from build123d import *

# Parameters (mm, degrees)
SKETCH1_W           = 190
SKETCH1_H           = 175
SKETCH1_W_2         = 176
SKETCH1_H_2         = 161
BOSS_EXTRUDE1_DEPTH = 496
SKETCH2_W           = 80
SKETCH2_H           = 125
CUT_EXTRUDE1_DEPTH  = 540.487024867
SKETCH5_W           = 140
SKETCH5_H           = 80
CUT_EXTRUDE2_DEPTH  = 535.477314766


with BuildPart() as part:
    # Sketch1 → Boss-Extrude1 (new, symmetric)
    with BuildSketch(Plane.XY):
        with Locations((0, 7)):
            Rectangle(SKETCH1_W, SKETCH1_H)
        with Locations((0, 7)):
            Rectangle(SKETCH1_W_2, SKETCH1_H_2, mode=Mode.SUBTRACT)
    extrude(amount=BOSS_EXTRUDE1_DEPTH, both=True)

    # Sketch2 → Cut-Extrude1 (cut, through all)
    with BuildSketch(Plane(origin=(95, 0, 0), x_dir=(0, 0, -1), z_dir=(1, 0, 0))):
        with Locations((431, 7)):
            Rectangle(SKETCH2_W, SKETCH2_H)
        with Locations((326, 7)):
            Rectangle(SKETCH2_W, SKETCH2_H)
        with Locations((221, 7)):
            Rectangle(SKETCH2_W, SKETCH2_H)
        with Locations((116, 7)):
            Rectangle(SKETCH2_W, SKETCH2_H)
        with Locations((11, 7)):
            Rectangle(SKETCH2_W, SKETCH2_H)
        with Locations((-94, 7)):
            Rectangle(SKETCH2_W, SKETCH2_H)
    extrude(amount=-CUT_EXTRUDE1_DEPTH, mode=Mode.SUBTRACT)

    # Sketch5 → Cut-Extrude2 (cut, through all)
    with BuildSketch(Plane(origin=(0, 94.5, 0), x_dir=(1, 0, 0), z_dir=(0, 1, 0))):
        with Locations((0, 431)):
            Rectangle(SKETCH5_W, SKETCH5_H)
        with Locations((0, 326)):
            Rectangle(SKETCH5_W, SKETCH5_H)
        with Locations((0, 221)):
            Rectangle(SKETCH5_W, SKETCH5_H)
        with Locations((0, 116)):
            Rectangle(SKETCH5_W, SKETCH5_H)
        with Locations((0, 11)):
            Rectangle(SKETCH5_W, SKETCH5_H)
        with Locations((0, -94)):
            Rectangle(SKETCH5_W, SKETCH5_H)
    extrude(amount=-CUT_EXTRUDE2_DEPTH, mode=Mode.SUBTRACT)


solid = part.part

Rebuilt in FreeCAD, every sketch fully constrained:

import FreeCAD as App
import Part
import Sketcher

doc = App.newDocument("Part")
body = doc.addObject("PartDesign::Body", "Body")

# Sketch on XY plane
sketch1 = doc.addObject("Sketcher::SketchObject", "Sketch")
body.addObject(sketch1)
sketch1.AttachmentSupport = (doc.XY_Plane, [""])
sketch1.MapMode = "FlatFace"
sketch1.addGeometry(Part.LineSegment(App.Vector(-95, 94.5, 0), App.Vector(-95, -80.5, 0)), False)
sketch1.addGeometry(Part.LineSegment(App.Vector(-95, -80.5, 0), App.Vector(95, -80.5, 0)), False)
sketch1.addGeometry(Part.LineSegment(App.Vector(95, -80.5, 0), App.Vector(95, 94.5, 0)), False)
sketch1.addGeometry(Part.LineSegment(App.Vector(95, 94.5, 0), App.Vector(-95, 94.5, 0)), False)
sketch1.addGeometry(Part.LineSegment(App.Vector(88, -73.5, 0), App.Vector(-88, -73.5, 0)), False)
sketch1.addGeometry(Part.LineSegment(App.Vector(-88, -73.5, 0), App.Vector(-88, 87.5, 0)), False)
sketch1.addGeometry(Part.LineSegment(App.Vector(-88, 87.5, 0), App.Vector(88, 87.5, 0)), False)
sketch1.addGeometry(Part.LineSegment(App.Vector(88, 87.5, 0), App.Vector(88, -73.5, 0)), False)
sketch1.addConstraint(Sketcher.Constraint("Coincident", 0, 2, 1, 1))
sketch1.addConstraint(Sketcher.Constraint("Coincident", 1, 2, 2, 1))
sketch1.addConstraint(Sketcher.Constraint("Coincident", 2, 2, 3, 1))
sketch1.addConstraint(Sketcher.Constraint("Coincident", 3, 2, 0, 1))
sketch1.addConstraint(Sketcher.Constraint("Coincident", 4, 2, 5, 1))
sketch1.addConstraint(Sketcher.Constraint("Coincident", 5, 2, 6, 1))
sketch1.addConstraint(Sketcher.Constraint("Coincident", 6, 2, 7, 1))
sketch1.addConstraint(Sketcher.Constraint("Coincident", 7, 2, 4, 1))
sketch1.addConstraint(Sketcher.Constraint("Vertical", 0))
sketch1.addConstraint(Sketcher.Constraint("Horizontal", 1))
sketch1.addConstraint(Sketcher.Constraint("Vertical", 2))
sketch1.addConstraint(Sketcher.Constraint("Horizontal", 3))
sketch1.addConstraint(Sketcher.Constraint("Horizontal", 4))
sketch1.addConstraint(Sketcher.Constraint("Vertical", 5))
sketch1.addConstraint(Sketcher.Constraint("Horizontal", 6))
sketch1.addConstraint(Sketcher.Constraint("Vertical", 7))
sketch1.addConstraint(Sketcher.Constraint("DistanceX", 1, 1, 1, 2, 190.0))
sketch1.addConstraint(Sketcher.Constraint("DistanceX", 4, 2, 4, 1, 176.0))
sketch1.addConstraint(Sketcher.Constraint("DistanceY", 0, 2, 0, 1, 175.0))
sketch1.addConstraint(Sketcher.Constraint("DistanceY", 5, 1, 5, 2, 161.0))
sketch1.addConstraint(Sketcher.Constraint("DistanceX", 0, 2, -1, 1, 95.0))
sketch1.addConstraint(Sketcher.Constraint("DistanceX", 4, 2, -1, 1, 88.0))
sketch1.addConstraint(Sketcher.Constraint("DistanceY", 0, 2, 4, 2, 7.0))
sketch1.addConstraint(Sketcher.Constraint("DistanceY", 0, 2, -1, 1, 80.5))
pad1 = doc.addObject("PartDesign::Pad", "Pad")
body.addObject(pad1)
pad1.Profile = sketch1
pad1.Length = 992
pad1.Midplane = True

# Sketch on YZ plane
sketch2 = doc.addObject("Sketcher::SketchObject", "Sketch001")
body.addObject(sketch2)
sketch2.AttachmentSupport = (doc.YZ_Plane, [""])
sketch2.MapMode = "FlatFace"
sketch2.AttachmentOffset = App.Placement(App.Vector(0, 0, 95), App.Rotation())
sketch2.addGeometry(Part.LineSegment(App.Vector(69.5, -391, 0), App.Vector(-55.5, -391, 0)), False)
sketch2.addGeometry(Part.LineSegment(App.Vector(-55.5, -391, 0), App.Vector(-55.5, -471, 0)), False)
sketch2.addGeometry(Part.LineSegment(App.Vector(-55.5, -471, 0), App.Vector(69.5, -471, 0)), False)
sketch2.addGeometry(Part.LineSegment(App.Vector(69.5, -471, 0), App.Vector(69.5, -391, 0)), False)
sketch2.addGeometry(Part.LineSegment(App.Vector(69.5, -286, 0), App.Vector(-55.5, -286, 0)), False)
sketch2.addGeometry(Part.LineSegment(App.Vector(-55.5, -286, 0), App.Vector(-55.5, -366, 0)), False)
sketch2.addGeometry(Part.LineSegment(App.Vector(-55.5, -366, 0), App.Vector(69.5, -366, 0)), False)
sketch2.addGeometry(Part.LineSegment(App.Vector(69.5, -366, 0), App.Vector(69.5, -286, 0)), False)
sketch2.addGeometry(Part.LineSegment(App.Vector(69.5, -181, 0), App.Vector(-55.5, -181, 0)), False)
sketch2.addGeometry(Part.LineSegment(App.Vector(-55.5, -181, 0), App.Vector(-55.5, -261, 0)), False)
sketch2.addGeometry(Part.LineSegment(App.Vector(-55.5, -261, 0), App.Vector(69.5, -261, 0)), False)
sketch2.addGeometry(Part.LineSegment(App.Vector(69.5, -261, 0), App.Vector(69.5, -181, 0)), False)
sketch2.addGeometry(Part.LineSegment(App.Vector(69.5, -76, 0), App.Vector(-55.5, -76, 0)), False)
sketch2.addGeometry(Part.LineSegment(App.Vector(-55.5, -76, 0), App.Vector(-55.5, -156, 0)), False)
sketch2.addGeometry(Part.LineSegment(App.Vector(-55.5, -156, 0), App.Vector(69.5, -156, 0)), False)
sketch2.addGeometry(Part.LineSegment(App.Vector(69.5, -156, 0), App.Vector(69.5, -76, 0)), False)
sketch2.addGeometry(Part.LineSegment(App.Vector(69.5, 29, 0), App.Vector(-55.5, 29, 0)), False)
sketch2.addGeometry(Part.LineSegment(App.Vector(-55.5, 29, 0), App.Vector(-55.5, -51, 0)), False)
sketch2.addGeometry(Part.LineSegment(App.Vector(-55.5, -51, 0), App.Vector(69.5, -51, 0)), False)
sketch2.addGeometry(Part.LineSegment(App.Vector(69.5, -51, 0), App.Vector(69.5, 29, 0)), False)
sketch2.addGeometry(Part.LineSegment(App.Vector(69.5, 134, 0), App.Vector(-55.5, 134, 0)), False)
sketch2.addGeometry(Part.LineSegment(App.Vector(-55.5, 134, 0), App.Vector(-55.5, 54, 0)), False)
sketch2.addGeometry(Part.LineSegment(App.Vector(-55.5, 54, 0), App.Vector(69.5, 54, 0)), False)
sketch2.addGeometry(Part.LineSegment(App.Vector(69.5, 54, 0), App.Vector(69.5, 134, 0)), False)
sketch2.addConstraint(Sketcher.Constraint("Coincident", 0, 2, 1, 1))
sketch2.addConstraint(Sketcher.Constraint("Coincident", 1, 2, 2, 1))
sketch2.addConstraint(Sketcher.Constraint("Coincident", 2, 2, 3, 1))
sketch2.addConstraint(Sketcher.Constraint("Coincident", 3, 2, 0, 1))
sketch2.addConstraint(Sketcher.Constraint("Coincident", 4, 2, 5, 1))
sketch2.addConstraint(Sketcher.Constraint("Coincident", 5, 2, 6, 1))
sketch2.addConstraint(Sketcher.Constraint("Coincident", 6, 2, 7, 1))
sketch2.addConstraint(Sketcher.Constraint("Coincident", 7, 2, 4, 1))
sketch2.addConstraint(Sketcher.Constraint("Coincident", 8, 2, 9, 1))
sketch2.addConstraint(Sketcher.Constraint("Coincident", 9, 2, 10, 1))
sketch2.addConstraint(Sketcher.Constraint("Coincident", 10, 2, 11, 1))
sketch2.addConstraint(Sketcher.Constraint("Coincident", 11, 2, 8, 1))
sketch2.addConstraint(Sketcher.Constraint("Coincident", 12, 2, 13, 1))
sketch2.addConstraint(Sketcher.Constraint("Coincident", 13, 2, 14, 1))
sketch2.addConstraint(Sketcher.Constraint("Coincident", 14, 2, 15, 1))
sketch2.addConstraint(Sketcher.Constraint("Coincident", 15, 2, 12, 1))
sketch2.addConstraint(Sketcher.Constraint("Coincident", 16, 2, 17, 1))
sketch2.addConstraint(Sketcher.Constraint("Coincident", 17, 2, 18, 1))
sketch2.addConstraint(Sketcher.Constraint("Coincident", 18, 2, 19, 1))
sketch2.addConstraint(Sketcher.Constraint("Coincident", 19, 2, 16, 1))
sketch2.addConstraint(Sketcher.Constraint("Coincident", 20, 2, 21, 1))
sketch2.addConstraint(Sketcher.Constraint("Coincident", 21, 2, 22, 1))
sketch2.addConstraint(Sketcher.Constraint("Coincident", 22, 2, 23, 1))
sketch2.addConstraint(Sketcher.Constraint("Coincident", 23, 2, 20, 1))
sketch2.addConstraint(Sketcher.Constraint("Horizontal", 0))
sketch2.addConstraint(Sketcher.Constraint("Vertical", 1))
sketch2.addConstraint(Sketcher.Constraint("Horizontal", 2))
sketch2.addConstraint(Sketcher.Constraint("Vertical", 3))
sketch2.addConstraint(Sketcher.Constraint("Horizontal", 4))
sketch2.addConstraint(Sketcher.Constraint("Vertical", 5))
sketch2.addConstraint(Sketcher.Constraint("Horizontal", 6))
sketch2.addConstraint(Sketcher.Constraint("Vertical", 7))
sketch2.addConstraint(Sketcher.Constraint("Horizontal", 8))
sketch2.addConstraint(Sketcher.Constraint("Vertical", 9))
sketch2.addConstraint(Sketcher.Constraint("Horizontal", 10))
sketch2.addConstraint(Sketcher.Constraint("Vertical", 11))
sketch2.addConstraint(Sketcher.Constraint("Horizontal", 12))
sketch2.addConstraint(Sketcher.Constraint("Vertical", 13))
sketch2.addConstraint(Sketcher.Constraint("Horizontal", 14))
sketch2.addConstraint(Sketcher.Constraint("Vertical", 15))
sketch2.addConstraint(Sketcher.Constraint("Horizontal", 16))
sketch2.addConstraint(Sketcher.Constraint("Vertical", 17))
sketch2.addConstraint(Sketcher.Constraint("Horizontal", 18))
sketch2.addConstraint(Sketcher.Constraint("Vertical", 19))
sketch2.addConstraint(Sketcher.Constraint("Horizontal", 20))
sketch2.addConstraint(Sketcher.Constraint("Vertical", 21))
sketch2.addConstraint(Sketcher.Constraint("Horizontal", 22))
sketch2.addConstraint(Sketcher.Constraint("Vertical", 23))
sketch2.addConstraint(Sketcher.Constraint("Vertical", 1, 2, 4, 2))
sketch2.addConstraint(Sketcher.Constraint("Vertical", 3, 2, 6, 2))
sketch2.addConstraint(Sketcher.Constraint("Vertical", 5, 2, 8, 2))
sketch2.addConstraint(Sketcher.Constraint("Vertical", 7, 2, 10, 2))
sketch2.addConstraint(Sketcher.Constraint("Vertical", 9, 2, 12, 2))
sketch2.addConstraint(Sketcher.Constraint("Vertical", 11, 2, 14, 2))
sketch2.addConstraint(Sketcher.Constraint("Vertical", 13, 2, 16, 2))
sketch2.addConstraint(Sketcher.Constraint("Vertical", 15, 2, 18, 2))
sketch2.addConstraint(Sketcher.Constraint("Vertical", 17, 2, 20, 2))
sketch2.addConstraint(Sketcher.Constraint("Vertical", 19, 2, 22, 2))
sketch2.addConstraint(Sketcher.Constraint("Equal", 3, 5))
sketch2.addConstraint(Sketcher.Constraint("Equal", 7, 9))
sketch2.addConstraint(Sketcher.Constraint("Equal", 11, 13))
sketch2.addConstraint(Sketcher.Constraint("Equal", 15, 17))
sketch2.addConstraint(Sketcher.Constraint("Equal", 19, 21))
sketch2.addConstraint(Sketcher.Constraint("DistanceX", 0, 2, 0, 1, 125.0))
sketch2.addConstraint(Sketcher.Constraint("DistanceY", 1, 2, 1, 1, 80.0))
sketch2.addConstraint(Sketcher.Constraint("DistanceY", 0, 2, -1, 1, 391.0))
sketch2.addConstraint(Sketcher.Constraint("DistanceY", 4, 2, -1, 1, 286.0))
sketch2.addConstraint(Sketcher.Constraint("DistanceY", 8, 2, -1, 1, 181.0))
sketch2.addConstraint(Sketcher.Constraint("DistanceY", 12, 2, -1, 1, 76.0))
sketch2.addConstraint(Sketcher.Constraint("DistanceY", -1, 1, 16, 2, 29.0))
sketch2.addConstraint(Sketcher.Constraint("DistanceY", -1, 1, 20, 2, 134.0))
sketch2.addConstraint(Sketcher.Constraint("DistanceX", 0, 2, -1, 1, 55.5))
pocket1 = doc.addObject("PartDesign::Pocket", "Pocket")
body.addObject(pocket1)
pocket1.Profile = sketch2
pocket1.Type = "ThroughAll"

# Sketch on XZ plane
sketch3 = doc.addObject("Sketcher::SketchObject", "Sketch002")
body.addObject(sketch3)
sketch3.AttachmentSupport = (doc.XZ_Plane, [""])
sketch3.MapMode = "FlatFace"
sketch3.AttachmentOffset = App.Placement(App.Vector(0, 0, -94.5), App.Rotation())
sketch3.addGeometry(Part.LineSegment(App.Vector(-70, -471, 0), App.Vector(-70, -391, 0)), False)
sketch3.addGeometry(Part.LineSegment(App.Vector(-70, -391, 0), App.Vector(70, -391, 0)), False)
sketch3.addGeometry(Part.LineSegment(App.Vector(70, -391, 0), App.Vector(70, -471, 0)), False)
sketch3.addGeometry(Part.LineSegment(App.Vector(70, -471, 0), App.Vector(-70, -471, 0)), False)
sketch3.addGeometry(Part.LineSegment(App.Vector(-70, -366, 0), App.Vector(-70, -286, 0)), False)
sketch3.addGeometry(Part.LineSegment(App.Vector(-70, -286, 0), App.Vector(70, -286, 0)), False)
sketch3.addGeometry(Part.LineSegment(App.Vector(70, -286, 0), App.Vector(70, -366, 0)), False)
sketch3.addGeometry(Part.LineSegment(App.Vector(70, -366, 0), App.Vector(-70, -366, 0)), False)
sketch3.addGeometry(Part.LineSegment(App.Vector(-70, -261, 0), App.Vector(-70, -181, 0)), False)
sketch3.addGeometry(Part.LineSegment(App.Vector(-70, -181, 0), App.Vector(70, -181, 0)), False)
sketch3.addGeometry(Part.LineSegment(App.Vector(70, -181, 0), App.Vector(70, -261, 0)), False)
sketch3.addGeometry(Part.LineSegment(App.Vector(70, -261, 0), App.Vector(-70, -261, 0)), False)
sketch3.addGeometry(Part.LineSegment(App.Vector(-70, -156, 0), App.Vector(-70, -76, 0)), False)
sketch3.addGeometry(Part.LineSegment(App.Vector(-70, -76, 0), App.Vector(70, -76, 0)), False)
sketch3.addGeometry(Part.LineSegment(App.Vector(70, -76, 0), App.Vector(70, -156, 0)), False)
sketch3.addGeometry(Part.LineSegment(App.Vector(70, -156, 0), App.Vector(-70, -156, 0)), False)
sketch3.addGeometry(Part.LineSegment(App.Vector(-70, -51, 0), App.Vector(-70, 29, 0)), False)
sketch3.addGeometry(Part.LineSegment(App.Vector(-70, 29, 0), App.Vector(70, 29, 0)), False)
sketch3.addGeometry(Part.LineSegment(App.Vector(70, 29, 0), App.Vector(70, -51, 0)), False)
sketch3.addGeometry(Part.LineSegment(App.Vector(70, -51, 0), App.Vector(-70, -51, 0)), False)
sketch3.addGeometry(Part.LineSegment(App.Vector(-70, 54, 0), App.Vector(-70, 134, 0)), False)
sketch3.addGeometry(Part.LineSegment(App.Vector(-70, 134, 0), App.Vector(70, 134, 0)), False)
sketch3.addGeometry(Part.LineSegment(App.Vector(70, 134, 0), App.Vector(70, 54, 0)), False)
sketch3.addGeometry(Part.LineSegment(App.Vector(70, 54, 0), App.Vector(-70, 54, 0)), False)
sketch3.addConstraint(Sketcher.Constraint("Coincident", 0, 2, 1, 1))
sketch3.addConstraint(Sketcher.Constraint("Coincident", 1, 2, 2, 1))
sketch3.addConstraint(Sketcher.Constraint("Coincident", 2, 2, 3, 1))
sketch3.addConstraint(Sketcher.Constraint("Coincident", 3, 2, 0, 1))
sketch3.addConstraint(Sketcher.Constraint("Coincident", 4, 2, 5, 1))
sketch3.addConstraint(Sketcher.Constraint("Coincident", 5, 2, 6, 1))
sketch3.addConstraint(Sketcher.Constraint("Coincident", 6, 2, 7, 1))
sketch3.addConstraint(Sketcher.Constraint("Coincident", 7, 2, 4, 1))
sketch3.addConstraint(Sketcher.Constraint("Coincident", 8, 2, 9, 1))
sketch3.addConstraint(Sketcher.Constraint("Coincident", 9, 2, 10, 1))
sketch3.addConstraint(Sketcher.Constraint("Coincident", 10, 2, 11, 1))
sketch3.addConstraint(Sketcher.Constraint("Coincident", 11, 2, 8, 1))
sketch3.addConstraint(Sketcher.Constraint("Coincident", 12, 2, 13, 1))
sketch3.addConstraint(Sketcher.Constraint("Coincident", 13, 2, 14, 1))
sketch3.addConstraint(Sketcher.Constraint("Coincident", 14, 2, 15, 1))
sketch3.addConstraint(Sketcher.Constraint("Coincident", 15, 2, 12, 1))
sketch3.addConstraint(Sketcher.Constraint("Coincident", 16, 2, 17, 1))
sketch3.addConstraint(Sketcher.Constraint("Coincident", 17, 2, 18, 1))
sketch3.addConstraint(Sketcher.Constraint("Coincident", 18, 2, 19, 1))
sketch3.addConstraint(Sketcher.Constraint("Coincident", 19, 2, 16, 1))
sketch3.addConstraint(Sketcher.Constraint("Coincident", 20, 2, 21, 1))
sketch3.addConstraint(Sketcher.Constraint("Coincident", 21, 2, 22, 1))
sketch3.addConstraint(Sketcher.Constraint("Coincident", 22, 2, 23, 1))
sketch3.addConstraint(Sketcher.Constraint("Coincident", 23, 2, 20, 1))
sketch3.addConstraint(Sketcher.Constraint("Vertical", 0))
sketch3.addConstraint(Sketcher.Constraint("Horizontal", 1))
sketch3.addConstraint(Sketcher.Constraint("Vertical", 2))
sketch3.addConstraint(Sketcher.Constraint("Horizontal", 3))
sketch3.addConstraint(Sketcher.Constraint("Vertical", 4))
sketch3.addConstraint(Sketcher.Constraint("Horizontal", 5))
sketch3.addConstraint(Sketcher.Constraint("Vertical", 6))
sketch3.addConstraint(Sketcher.Constraint("Horizontal", 7))
sketch3.addConstraint(Sketcher.Constraint("Vertical", 8))
sketch3.addConstraint(Sketcher.Constraint("Horizontal", 9))
sketch3.addConstraint(Sketcher.Constraint("Vertical", 10))
sketch3.addConstraint(Sketcher.Constraint("Horizontal", 11))
sketch3.addConstraint(Sketcher.Constraint("Vertical", 12))
sketch3.addConstraint(Sketcher.Constraint("Horizontal", 13))
sketch3.addConstraint(Sketcher.Constraint("Vertical", 14))
sketch3.addConstraint(Sketcher.Constraint("Horizontal", 15))
sketch3.addConstraint(Sketcher.Constraint("Vertical", 16))
sketch3.addConstraint(Sketcher.Constraint("Horizontal", 17))
sketch3.addConstraint(Sketcher.Constraint("Vertical", 18))
sketch3.addConstraint(Sketcher.Constraint("Horizontal", 19))
sketch3.addConstraint(Sketcher.Constraint("Vertical", 20))
sketch3.addConstraint(Sketcher.Constraint("Horizontal", 21))
sketch3.addConstraint(Sketcher.Constraint("Vertical", 22))
sketch3.addConstraint(Sketcher.Constraint("Horizontal", 23))
sketch3.addConstraint(Sketcher.Constraint("Vertical", 3, 2, 4, 2))
sketch3.addConstraint(Sketcher.Constraint("Vertical", 2, 2, 5, 2))
sketch3.addConstraint(Sketcher.Constraint("Vertical", 7, 2, 8, 2))
sketch3.addConstraint(Sketcher.Constraint("Vertical", 6, 2, 9, 2))
sketch3.addConstraint(Sketcher.Constraint("Vertical", 11, 2, 12, 2))
sketch3.addConstraint(Sketcher.Constraint("Vertical", 10, 2, 13, 2))
sketch3.addConstraint(Sketcher.Constraint("Vertical", 15, 2, 16, 2))
sketch3.addConstraint(Sketcher.Constraint("Vertical", 14, 2, 17, 2))
sketch3.addConstraint(Sketcher.Constraint("Vertical", 19, 2, 20, 2))
sketch3.addConstraint(Sketcher.Constraint("Vertical", 18, 2, 21, 2))
sketch3.addConstraint(Sketcher.Constraint("Equal", 2, 4))
sketch3.addConstraint(Sketcher.Constraint("Equal", 6, 8))
sketch3.addConstraint(Sketcher.Constraint("Equal", 10, 12))
sketch3.addConstraint(Sketcher.Constraint("Equal", 14, 16))
sketch3.addConstraint(Sketcher.Constraint("Equal", 18, 20))
sketch3.addConstraint(Sketcher.Constraint("DistanceX", 1, 1, 1, 2, 140.0))
sketch3.addConstraint(Sketcher.Constraint("DistanceY", 0, 1, 0, 2, 80.0))
sketch3.addConstraint(Sketcher.Constraint("DistanceX", 0, 2, -1, 1, 70.0))
sketch3.addConstraint(Sketcher.Constraint("DistanceY", 0, 2, -1, 1, 391.0))
sketch3.addConstraint(Sketcher.Constraint("DistanceY", 4, 2, -1, 1, 286.0))
sketch3.addConstraint(Sketcher.Constraint("DistanceY", 8, 2, -1, 1, 181.0))
sketch3.addConstraint(Sketcher.Constraint("DistanceY", 12, 2, -1, 1, 76.0))
sketch3.addConstraint(Sketcher.Constraint("DistanceY", -1, 1, 16, 2, 29.0))
sketch3.addConstraint(Sketcher.Constraint("DistanceY", -1, 1, 20, 2, 134.0))
pocket2 = doc.addObject("PartDesign::Pocket", "Pocket001")
body.addObject(pocket2)
pocket2.Profile = sketch3
pocket2.Type = "ThroughAll"
pocket2.Reversed = True

doc.recompute()
